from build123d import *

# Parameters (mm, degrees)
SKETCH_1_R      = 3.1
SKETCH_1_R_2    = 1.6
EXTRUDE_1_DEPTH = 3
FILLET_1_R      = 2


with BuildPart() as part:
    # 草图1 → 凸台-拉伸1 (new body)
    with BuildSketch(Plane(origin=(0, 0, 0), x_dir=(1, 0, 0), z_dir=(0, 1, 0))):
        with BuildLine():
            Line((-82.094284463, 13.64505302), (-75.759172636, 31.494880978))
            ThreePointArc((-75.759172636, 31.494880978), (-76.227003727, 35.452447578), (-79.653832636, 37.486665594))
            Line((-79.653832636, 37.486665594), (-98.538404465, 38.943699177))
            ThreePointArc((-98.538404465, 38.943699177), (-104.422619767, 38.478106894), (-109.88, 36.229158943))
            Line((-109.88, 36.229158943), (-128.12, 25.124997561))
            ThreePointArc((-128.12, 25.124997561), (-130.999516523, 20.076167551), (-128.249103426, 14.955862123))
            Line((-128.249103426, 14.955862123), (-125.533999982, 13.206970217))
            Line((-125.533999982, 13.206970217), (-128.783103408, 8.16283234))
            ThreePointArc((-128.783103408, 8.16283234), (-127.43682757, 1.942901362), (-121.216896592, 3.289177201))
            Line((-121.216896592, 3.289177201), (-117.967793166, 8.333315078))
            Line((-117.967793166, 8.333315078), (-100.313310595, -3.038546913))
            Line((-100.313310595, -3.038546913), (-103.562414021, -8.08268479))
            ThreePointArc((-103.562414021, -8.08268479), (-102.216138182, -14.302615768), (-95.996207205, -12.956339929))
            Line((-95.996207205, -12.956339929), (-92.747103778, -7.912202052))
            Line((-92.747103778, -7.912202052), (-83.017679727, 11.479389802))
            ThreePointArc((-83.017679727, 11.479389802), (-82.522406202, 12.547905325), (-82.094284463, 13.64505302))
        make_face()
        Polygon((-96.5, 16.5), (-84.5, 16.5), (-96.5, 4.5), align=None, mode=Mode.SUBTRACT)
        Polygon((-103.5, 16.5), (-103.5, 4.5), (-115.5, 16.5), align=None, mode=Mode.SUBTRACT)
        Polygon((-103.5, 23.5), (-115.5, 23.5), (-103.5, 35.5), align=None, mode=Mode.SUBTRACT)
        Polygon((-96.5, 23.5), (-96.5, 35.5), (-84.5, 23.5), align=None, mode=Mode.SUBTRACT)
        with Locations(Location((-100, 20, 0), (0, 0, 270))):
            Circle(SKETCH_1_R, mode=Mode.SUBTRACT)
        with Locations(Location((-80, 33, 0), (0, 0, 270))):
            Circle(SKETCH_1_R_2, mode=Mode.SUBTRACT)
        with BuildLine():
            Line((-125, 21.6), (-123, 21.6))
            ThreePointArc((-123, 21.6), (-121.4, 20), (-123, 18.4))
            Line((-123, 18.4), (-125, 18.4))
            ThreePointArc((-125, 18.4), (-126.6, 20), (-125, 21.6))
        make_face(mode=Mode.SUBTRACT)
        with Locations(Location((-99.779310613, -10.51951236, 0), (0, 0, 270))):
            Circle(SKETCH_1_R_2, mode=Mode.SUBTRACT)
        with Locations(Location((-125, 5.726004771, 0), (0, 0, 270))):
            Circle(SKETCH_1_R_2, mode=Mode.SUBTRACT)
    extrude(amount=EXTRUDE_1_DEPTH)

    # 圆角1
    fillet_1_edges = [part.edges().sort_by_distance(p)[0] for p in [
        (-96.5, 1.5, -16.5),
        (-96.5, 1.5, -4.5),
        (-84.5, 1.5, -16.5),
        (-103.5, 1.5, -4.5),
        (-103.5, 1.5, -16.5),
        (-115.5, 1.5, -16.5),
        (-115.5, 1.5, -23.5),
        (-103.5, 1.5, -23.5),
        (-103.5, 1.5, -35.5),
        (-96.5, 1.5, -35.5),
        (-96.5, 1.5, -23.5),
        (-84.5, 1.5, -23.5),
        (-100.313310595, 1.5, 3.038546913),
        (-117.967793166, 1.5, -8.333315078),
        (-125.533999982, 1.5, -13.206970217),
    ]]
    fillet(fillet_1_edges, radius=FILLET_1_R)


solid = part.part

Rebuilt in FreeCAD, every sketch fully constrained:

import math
import FreeCAD as App
import Part
import Sketcher


def edges_at(feature, points):
    """Names of the edges that pass closest to the given points."""
    edges = feature.Shape.Edges
    near = lambda p: min(range(len(edges)), key=lambda i: edges[i].distToShape(Part.Vertex(*p))[0])
    return sorted({f"Edge{near(p) + 1}" for p in points})

doc = App.newDocument("Part")
body = doc.addObject("PartDesign::Body", "Body")

sketch1 = doc.addObject("Sketcher::SketchObject", "Sketch")
body.addObject(sketch1)
sketch1.AttachmentSupport = (doc.XZ_Plane, [""])
sketch1.MapMode = "FlatFace"
sketch1.addGeometry(Part.LineSegment(App.Vector(-82.094284, -13.645053, 0), App.Vector(-75.759173, -31.494881, 0)), False)
sketch1.addGeometry(Part.ArcOfCircle(Part.Circle(App.Vector(-80, -33, 0), App.Vector(0, 0, 1), 4.5), math.radians(-85.588102), math.radians(19.540366)), False)
sketch1.addGeometry(Part.LineSegment(App.Vector(-79.653833, -37.486666, 0), App.Vector(-98.538404, -38.943699, 0)), False)
sketch1.addGeometry(Part.ArcOfCircle(Part.Circle(App.Vector(-100, -20, 0), App.Vector(0, 0, 1), 19), math.radians(-121.332251), math.radians(-85.588102)), False)
sketch1.addGeometry(Part.LineSegment(App.Vector(-109.88, -36.229159, 0), App.Vector(-128.12, -25.124998, 0)), False)
sketch1.addGeometry(Part.ArcOfCircle(Part.Circle(App.Vector(-125, -20, 0), App.Vector(0, 0, 1), 6), math.radians(122.786984), math.radians(238.667749)), False)
sketch1.addGeometry(Part.LineSegment(App.Vector(-128.249103, -14.955862, 0), App.Vector(-125.534, -13.20697, 0)), False)
sketch1.addGeometry(Part.LineSegment(App.Vector(-125.534, -13.20697, 0), App.Vector(-128.783103, -8.162832, 0)), False)
sketch1.addGeometry(Part.ArcOfCircle(Part.Circle(App.Vector(-125, -5.726005, 0), App.Vector(0, 0, 1), 4.5), math.radians(32.786984), math.radians(212.786984)), False)
sketch1.addGeometry(Part.LineSegment(App.Vector(-121.216897, -3.289177, 0), App.Vector(-117.967793, -8.333315, 0)), False)
sketch1.addGeometry(Part.LineSegment(App.Vector(-117.967793, -8.333315, 0), App.Vector(-100.313311, 3.038547, 0)), False)
sketch1.addGeometry(Part.LineSegment(App.Vector(-100.313311, 3.038547, 0), App.Vector(-103.562414, 8.082685, 0)), False)
sketch1.addGeometry(Part.ArcOfCircle(Part.Circle(App.Vector(-99.779311, 10.519512, 0), App.Vector(0, 0, 1), 4.5), math.radians(32.786984), math.radians(212.786984)), False)
sketch1.addGeometry(Part.LineSegment(App.Vector(-95.996207, 12.95634, 0), App.Vector(-92.747104, 7.912202, 0)), False)
sketch1.addGeometry(Part.LineSegment(App.Vector(-92.747104, 7.912202, 0), App.Vector(-83.01768, -11.47939, 0)), False)
sketch1.addGeometry(Part.ArcOfCircle(Part.Circle(App.Vector(-100, -20, 0), App.Vector(0, 0, 1), 19), math.radians(19.540366), math.radians(26.644484)), False)
sketch1.addGeometry(Part.Circle(App.Vector(-125, -5.726005, 0), App.Vector(0, 0, 1), 1.6), False)
sketch1.addGeometry(Part.LineSegment(App.Vector(-115.5, -16.5, 0), App.Vector(-103.5, -16.5, 0)), False)
sketch1.addGeometry(Part.LineSegment(App.Vector(-103.5, -16.5, 0), App.Vector(-103.5, -4.5, 0)), False)
sketch1.addGeometry(Part.LineSegment(App.Vector(-103.5, -4.5, 0), App.Vector(-115.5, -16.5, 0)), False)
sketch1.addGeometry(Part.Circle(App.Vector(-99.779311, 10.519512, 0), App.Vector(0, 0, 1), 1.6), False)
sketch1.addGeometry(Part.LineSegment(App.Vector(-96.5, -4.5, 0), App.Vector(-96.5, -16.5, 0)), False)
sketch1.addGeometry(Part.LineSegment(App.Vector(-96.5, -16.5, 0), App.Vector(-84.5, -16.5, 0)), False)
sketch1.addGeometry(Part.LineSegment(App.Vector(-84.5, -16.5, 0), App.Vector(-96.5, -4.5, 0)), False)
sketch1.addGeometry(Part.ArcOfCircle(Part.Circle(App.Vector(-125, -20, 0), App.Vector(0, 0, 1), 1.6), math.radians(90), math.radians(270)), False)
sketch1.addGeometry(Part.LineSegment(App.Vector(-125, -21.6, 0), App.Vector(-123, -21.6, 0)), False)
sketch1.addGeometry(Part.ArcOfCircle(Part.Circle(App.Vector(-123, -20, 0), App.Vector(0, 0, 1), 1.6), math.radians(-90), math.radians(90)), False)
sketch1.addGeometry(Part.LineSegment(App.Vector(-123, -18.4, 0), App.Vector(-125, -18.4, 0)), False)
sketch1.addGeometry(Part.LineSegment(App.Vector(-103.5, -35.5, 0), App.Vector(-103.5, -23.5, 0)), False)
sketch1.addGeometry(Part.LineSegment(App.Vector(-103.5, -23.5, 0), App.Vector(-115.5, -23.5, 0)), False)
sketch1.addGeometry(Part.LineSegment(App.Vector(-115.5, -23.5, 0), App.Vector(-103.5, -35.5, 0)), False)
sketch1.addGeometry(Part.Circle(App.Vector(-100, -20, 0), App.Vector(0, 0, 1), 3.1), False)
sketch1.addGeometry(Part.LineSegment(App.Vector(-84.5, -23.5, 0), App.Vector(-96.5, -23.5, 0)), False)
sketch1.addGeometry(Part.LineSegment(App.Vector(-96.5, -23.5, 0), App.Vector(-96.5, -35.5, 0)), False)
sketch1.addGeometry(Part.LineSegment(App.Vector(-96.5, -35.5, 0), App.Vector(-84.5, -23.5, 0)), False)
sketch1.addGeometry(Part.Circle(App.Vector(-80, -33, 0), App.Vector(0, 0, 1), 1.6), False)
sketch1.addConstraint(Sketcher.Constraint("Tangent", 0, 2, 1, 2))
sketch1.addConstraint(Sketcher.Constraint("Tangent", 1, 1, 2, 1))
sketch1.addConstraint(Sketcher.Constraint("Tangent", 2, 2, 3, 2))
sketch1.addConstraint(Sketcher.Constraint("Tangent", 3, 1, 4, 1))
sketch1.addConstraint(Sketcher.Constraint("Tangent", 4, 2, 5, 2))
sketch1.addConstraint(Sketcher.Constraint("Tangent", 5, 1, 6, 1))
sketch1.addConstraint(Sketcher.Constraint("Coincident", 6, 2, 7, 1))
sketch1.addConstraint(Sketcher.Constraint("Tangent", 7, 2, 8, 2))
sketch1.addConstraint(Sketcher.Constraint("Tangent", 8, 1, 9, 1))
sketch1.addConstraint(Sketcher.Constraint("Coincident", 9, 2, 10, 1))
sketch1.addConstraint(Sketcher.Constraint("Coincident", 10, 2, 11, 1))
sketch1.addConstraint(Sketcher.Constraint("Tangent", 11, 2, 12, 2))
sketch1.addConstraint(Sketcher.Constraint("Tangent", 12, 1, 13, 1))
sketch1.addConstraint(Sketcher.Constraint("Coincident", 13, 2, 14, 1))
sketch1.addConstraint(Sketcher.Constraint("Tangent", 14, 2, 15, 2))
sketch1.addConstraint(Sketcher.Constraint("Tangent", 15, 1, 0, 1))
sketch1.addConstraint(Sketcher.Constraint("Coincident", 17, 2, 18, 1))
sketch1.addConstraint(Sketcher.Constraint("Coincident", 18, 2, 19, 1))
sketch1.addConstraint(Sketcher.Constraint("Coincident", 19, 2, 17, 1))
sketch1.addConstraint(Sketcher.Constraint("Coincident", 21, 2, 22, 1))
sketch1.addConstraint(Sketcher.Constraint("Coincident", 22, 2, 23, 1))
sketch1.addConstraint(Sketcher.Constraint("Coincident", 23, 2, 21, 1))
sketch1.addConstraint(Sketcher.Constraint("Tangent", 24, 2, 25, 1))
sketch1.addConstraint(Sketcher.Constraint("Tangent", 25, 2, 26, 1))
sketch1.addConstraint(Sketcher.Constraint("Tangent", 26, 2, 27, 1))
sketch1.addConstraint(Sketcher.Constraint("Tangent", 27, 2, 24, 1))
sketch1.addConstraint(Sketcher.Constraint("Coincident", 28, 2, 29, 1))
sketch1.addConstraint(Sketcher.Constraint("Coincident", 29, 2, 30, 1))
sketch1.addConstraint(Sketcher.Constraint("Coincident", 30, 2, 28, 1))
sketch1.addConstraint(Sketcher.Constraint("Coincident", 32, 2, 33, 1))
sketch1.addConstraint(Sketcher.Constraint("Coincident", 33, 2, 34, 1))
sketch1.addConstraint(Sketcher.Constraint("Coincident", 34, 2, 32, 1))
sketch1.addConstraint(Sketcher.Constraint("Horizontal", 17))
sketch1.addConstraint(Sketcher.Constraint("Vertical", 18))
sketch1.addConstraint(Sketcher.Constraint("Vertical", 21))
sketch1.addConstraint(Sketcher.Constraint("Horizontal", 22))
sketch1.addConstraint(Sketcher.Constraint("Horizontal", 25))
sketch1.addConstraint(Sketcher.Constraint("Horizontal", 27))
sketch1.addConstraint(Sketcher.Constraint("Vertical", 28))
sketch1.addConstraint(Sketcher.Constraint("Horizontal", 29))
sketch1.addConstraint(Sketcher.Constraint("Horizontal", 32))
sketch1.addConstraint(Sketcher.Constraint("Vertical", 33))
sketch1.addConstraint(Sketcher.Constraint("Coincident", 15, 3, 3, 3))
sketch1.addConstraint(Sketcher.Constraint("Coincident", 16, 3, 8, 3))
sketch1.addConstraint(Sketcher.Constraint("Coincident", 20, 3, 12, 3))
sketch1.addConstraint(Sketcher.Constraint("Coincident", 24, 3, 5, 3))
sketch1.addConstraint(Sketcher.Constraint("Coincident", 31, 3, 3, 3))
sketch1.addConstraint(Sketcher.Constraint("Coincident", 35, 3, 1, 3))
sketch1.addConstraint(Sketcher.Constraint("Equal", 1, 8))
sketch1.addConstraint(Sketcher.Constraint("Equal", 8, 12))
sketch1.addConstraint(Sketcher.Constraint("Equal", 3, 15))
sketch1.addConstraint(Sketcher.Constraint("Equal", 16, 20))
sketch1.addConstraint(Sketcher.Constraint("Equal", 20, 24))
sketch1.addConstraint(Sketcher.Constraint("Equal", 26, 35))
sketch1.addConstraint(Sketcher.Constraint("Perpendicular", 6, 7))
sketch1.addConstraint(Sketcher.Constraint("Parallel", 7, 9))
sketch1.addConstraint(Sketcher.Constraint("Perpendicular", 9, 10))
sketch1.addConstraint(Sketcher.Constraint("Perpendicular", 10, 11))
sketch1.addConstraint(Sketcher.Constraint("Parallel", 11, 13))
sketch1.addConstraint(Sketcher.Constraint("Perpendicular", 19, 23))
sketch1.addConstraint(Sketcher.Constraint("Parallel", 23, 30))
sketch1.addConstraint(Sketcher.Constraint("Perpendicular", 30, 34))
sketch1.addConstraint(Sketcher.Constraint("Horizontal", 3, 3, 5, 3))
sketch1.addConstraint(Sketcher.Constraint("Horizontal", 19, 2, 21, 2))
sketch1.addConstraint(Sketcher.Constraint("Horizontal", 18, 2, 23, 2))
sketch1.addConstraint(Sketcher.Constraint("Horizontal", 29, 2, 32, 2))
sketch1.addConstraint(Sketcher.Constraint("Horizontal", 30, 2, 33, 2))
sketch1.addConstraint(Sketcher.Constraint("Vertical", 5, 3, 8, 3))
sketch1.addConstraint(Sketcher.Constraint("Vertical", 18, 2, 28, 2))
sketch1.addConstraint(Sketcher.Constraint("Vertical", 19, 2, 29, 2))
sketch1.addConstraint(Sketcher.Constraint("Vertical", 23, 2, 32, 2))
sketch1.addConstraint(Sketcher.Constraint("Vertical", 22, 2, 34, 2))
sketch1.addConstraint(Sketcher.Constraint("Equal", 7, 9))
sketch1.addConstraint(Sketcher.Constraint("Equal", 9, 11))
sketch1.addConstraint(Sketcher.Constraint("Equal", 11, 13))
sketch1.addConstraint(Sketcher.Constraint("Radius", 3, 19.0))
sketch1.addConstraint(Sketcher.Constraint("Radius", 5, 6.0))
sketch1.addConstraint(Sketcher.Constraint("Diameter", 16, 3.2))
sketch1.addConstraint(Sketcher.Constraint("Diameter", 31, 6.2))
sketch1.addConstraint(Sketcher.Constraint("Radius", 1, 4.5))
sketch1.addConstraint(Sketcher.Constraint("DistanceX", 17, 1, 17, 2, 12.0))
sketch1.addConstraint(Sketcher.Constraint("DistanceX", 25, 1, 25, 2, 2.0))
sketch1.addConstraint(Sketcher.Constraint("Distance", 7, 6.0))
sketch1.addConstraint(Sketcher.Constraint("Distance", 10, 21.0))
sketch1.addConstraint(Sketcher.Constraint("DistanceX", 1, 3, -1, 1, 80.0))
sketch1.addConstraint(Sketcher.Constraint("DistanceY", 1, 3, -1, 1, 33.0))
sketch1.addConstraint(Sketcher.Constraint("DistanceX", 3, 3, -1, 1, 100.0))
sketch1.addConstraint(Sketcher.Constraint("DistanceY", 3, 3, -1, 1, 20.0))
sketch1.addConstraint(Sketcher.Constraint("DistanceX", 5, 3, -1, 1, 125.0))
sketch1.addConstraint(Sketcher.Constraint("DistanceX", 17, 2, 21, 2, 7.0))
sketch1.addConstraint(Sketcher.Constraint("DistanceY", 28, 2, 17, 2, 7.0))
sketch1.addConstraint(Sketcher.Constraint("DistanceX", 17, 2, -1, 1, 103.5))
sketch1.addConstraint(Sketcher.Constraint("DistanceY", 17, 2, -1, 1, 16.5))
sketch1.addConstraint(Sketcher.Constraint("DistanceX", 6, 2, -1, 1, 125.534))
pad1 = doc.addObject("PartDesign::Pad", "Pad")
body.addObject(pad1)
pad1.Profile = sketch1
pad1.Length = 3
pad1.Reversed = True
doc.recompute()

fillet = doc.addObject("PartDesign::Fillet", "Fillet")
body.addObject(fillet)
fillet.Base = (pad1, edges_at(pad1, [
    (-96.5, 1.5, -16.5),
    (-96.5, 1.5, -4.5),
    (-84.5, 1.5, -16.5),
    (-103.5, 1.5, -4.5),
    (-103.5, 1.5, -16.5),
    (-115.5, 1.5, -16.5),
    (-115.5, 1.5, -23.5),
    (-103.5, 1.5, -23.5),
    (-103.5, 1.5, -35.5),
    (-96.5, 1.5, -35.5),
    (-96.5, 1.5, -23.5),
    (-84.5, 1.5, -23.5),
    (-100.313, 1.5, 3.039),
    (-117.968, 1.5, -8.333),
    (-125.534, 1.5, -13.207),
]))
fillet.Radius = 2

doc.recompute()
